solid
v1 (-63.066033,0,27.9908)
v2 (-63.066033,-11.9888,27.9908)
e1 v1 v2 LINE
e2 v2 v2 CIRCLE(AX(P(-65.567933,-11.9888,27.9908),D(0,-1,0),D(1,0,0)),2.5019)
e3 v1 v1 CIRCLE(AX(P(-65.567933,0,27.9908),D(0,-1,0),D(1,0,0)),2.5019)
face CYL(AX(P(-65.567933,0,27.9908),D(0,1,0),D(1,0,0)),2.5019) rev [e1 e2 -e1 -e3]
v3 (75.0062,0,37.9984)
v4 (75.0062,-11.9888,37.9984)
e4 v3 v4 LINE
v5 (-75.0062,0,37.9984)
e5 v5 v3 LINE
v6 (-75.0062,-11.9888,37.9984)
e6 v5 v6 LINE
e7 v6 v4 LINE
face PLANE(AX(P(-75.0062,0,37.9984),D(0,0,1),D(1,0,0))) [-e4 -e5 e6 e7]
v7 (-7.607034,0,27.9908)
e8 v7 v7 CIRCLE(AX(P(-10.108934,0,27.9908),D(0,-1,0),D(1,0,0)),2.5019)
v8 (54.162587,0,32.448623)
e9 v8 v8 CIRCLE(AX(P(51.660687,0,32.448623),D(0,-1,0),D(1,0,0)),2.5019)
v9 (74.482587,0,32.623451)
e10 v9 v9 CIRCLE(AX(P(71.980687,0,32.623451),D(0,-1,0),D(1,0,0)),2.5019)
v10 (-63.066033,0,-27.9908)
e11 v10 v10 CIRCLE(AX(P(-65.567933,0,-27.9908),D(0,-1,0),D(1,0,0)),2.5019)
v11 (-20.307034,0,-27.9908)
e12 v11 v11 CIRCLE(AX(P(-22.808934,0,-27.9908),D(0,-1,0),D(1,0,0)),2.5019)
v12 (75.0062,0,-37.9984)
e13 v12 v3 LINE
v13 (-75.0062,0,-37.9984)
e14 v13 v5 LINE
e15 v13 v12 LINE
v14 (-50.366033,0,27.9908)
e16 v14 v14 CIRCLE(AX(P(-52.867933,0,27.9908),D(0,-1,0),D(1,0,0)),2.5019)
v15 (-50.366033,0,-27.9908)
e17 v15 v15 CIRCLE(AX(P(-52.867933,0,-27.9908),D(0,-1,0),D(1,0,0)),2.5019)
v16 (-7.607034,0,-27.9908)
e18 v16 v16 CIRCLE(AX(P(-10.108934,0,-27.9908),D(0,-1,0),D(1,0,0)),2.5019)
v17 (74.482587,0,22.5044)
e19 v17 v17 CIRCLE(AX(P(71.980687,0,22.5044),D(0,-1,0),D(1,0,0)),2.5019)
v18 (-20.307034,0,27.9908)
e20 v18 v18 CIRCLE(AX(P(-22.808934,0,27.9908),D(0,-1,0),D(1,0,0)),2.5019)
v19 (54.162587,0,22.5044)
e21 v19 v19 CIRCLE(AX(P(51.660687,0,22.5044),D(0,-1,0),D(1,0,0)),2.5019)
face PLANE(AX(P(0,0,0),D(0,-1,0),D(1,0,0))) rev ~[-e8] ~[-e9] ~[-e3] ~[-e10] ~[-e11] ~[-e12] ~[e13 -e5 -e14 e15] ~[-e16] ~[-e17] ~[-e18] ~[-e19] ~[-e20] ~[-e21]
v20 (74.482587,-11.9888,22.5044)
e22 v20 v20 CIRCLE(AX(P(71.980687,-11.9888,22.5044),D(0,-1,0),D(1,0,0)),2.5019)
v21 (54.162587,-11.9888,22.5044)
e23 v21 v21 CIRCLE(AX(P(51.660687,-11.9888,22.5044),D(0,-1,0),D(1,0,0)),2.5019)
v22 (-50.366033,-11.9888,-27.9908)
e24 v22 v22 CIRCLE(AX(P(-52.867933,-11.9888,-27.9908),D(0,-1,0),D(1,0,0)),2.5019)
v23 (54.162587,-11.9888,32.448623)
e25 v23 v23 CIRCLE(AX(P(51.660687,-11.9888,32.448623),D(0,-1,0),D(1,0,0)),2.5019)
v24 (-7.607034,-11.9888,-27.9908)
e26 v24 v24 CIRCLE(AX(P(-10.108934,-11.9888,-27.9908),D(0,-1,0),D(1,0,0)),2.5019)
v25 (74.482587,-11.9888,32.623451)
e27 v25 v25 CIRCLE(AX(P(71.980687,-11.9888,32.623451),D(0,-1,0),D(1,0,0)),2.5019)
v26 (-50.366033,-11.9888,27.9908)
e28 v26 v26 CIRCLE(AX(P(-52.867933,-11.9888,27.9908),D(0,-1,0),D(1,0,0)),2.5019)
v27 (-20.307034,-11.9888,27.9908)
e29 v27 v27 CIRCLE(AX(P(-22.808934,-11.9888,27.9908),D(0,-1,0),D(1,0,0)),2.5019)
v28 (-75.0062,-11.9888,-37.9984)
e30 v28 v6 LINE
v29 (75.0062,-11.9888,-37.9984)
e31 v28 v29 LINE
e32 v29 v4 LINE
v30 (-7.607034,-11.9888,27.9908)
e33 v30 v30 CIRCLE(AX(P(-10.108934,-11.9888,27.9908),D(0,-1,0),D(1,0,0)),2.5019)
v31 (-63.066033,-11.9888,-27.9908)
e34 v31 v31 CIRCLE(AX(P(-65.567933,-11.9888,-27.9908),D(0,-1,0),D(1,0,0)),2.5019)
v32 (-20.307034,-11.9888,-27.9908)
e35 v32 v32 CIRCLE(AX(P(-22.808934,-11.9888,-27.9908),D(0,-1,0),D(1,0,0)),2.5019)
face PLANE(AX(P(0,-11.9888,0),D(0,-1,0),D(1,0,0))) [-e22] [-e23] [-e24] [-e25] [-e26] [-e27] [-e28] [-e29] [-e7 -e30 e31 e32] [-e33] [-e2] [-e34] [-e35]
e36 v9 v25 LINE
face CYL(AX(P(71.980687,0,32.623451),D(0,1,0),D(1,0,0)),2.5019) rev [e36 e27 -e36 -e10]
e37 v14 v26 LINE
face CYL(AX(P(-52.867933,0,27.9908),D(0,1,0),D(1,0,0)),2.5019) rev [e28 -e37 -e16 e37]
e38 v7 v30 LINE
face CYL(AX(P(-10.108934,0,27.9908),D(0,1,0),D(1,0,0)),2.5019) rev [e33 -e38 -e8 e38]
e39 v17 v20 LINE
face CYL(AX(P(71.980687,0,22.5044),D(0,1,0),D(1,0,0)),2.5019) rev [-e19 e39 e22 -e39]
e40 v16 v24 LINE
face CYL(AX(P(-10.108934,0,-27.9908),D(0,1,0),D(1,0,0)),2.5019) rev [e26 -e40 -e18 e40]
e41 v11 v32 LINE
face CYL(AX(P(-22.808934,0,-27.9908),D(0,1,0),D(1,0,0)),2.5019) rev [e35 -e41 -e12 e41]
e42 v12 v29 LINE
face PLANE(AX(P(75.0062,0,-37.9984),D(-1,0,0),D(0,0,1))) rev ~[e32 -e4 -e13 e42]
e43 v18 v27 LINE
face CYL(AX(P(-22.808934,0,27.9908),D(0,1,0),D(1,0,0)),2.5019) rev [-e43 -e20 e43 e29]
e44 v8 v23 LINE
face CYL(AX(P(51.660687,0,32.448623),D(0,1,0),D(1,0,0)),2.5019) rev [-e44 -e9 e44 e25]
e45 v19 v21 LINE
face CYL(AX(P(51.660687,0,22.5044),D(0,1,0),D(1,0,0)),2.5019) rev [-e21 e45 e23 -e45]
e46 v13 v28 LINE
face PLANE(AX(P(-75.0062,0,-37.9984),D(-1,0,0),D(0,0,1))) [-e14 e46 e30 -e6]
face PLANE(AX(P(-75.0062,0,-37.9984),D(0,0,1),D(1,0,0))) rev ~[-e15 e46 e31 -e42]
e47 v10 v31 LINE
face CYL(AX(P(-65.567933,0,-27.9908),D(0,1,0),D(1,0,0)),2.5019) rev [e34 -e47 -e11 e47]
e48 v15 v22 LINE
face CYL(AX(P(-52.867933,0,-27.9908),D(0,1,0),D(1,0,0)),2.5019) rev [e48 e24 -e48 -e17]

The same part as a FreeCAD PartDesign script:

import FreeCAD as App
import Part
import Sketcher

V = App.Vector
Q = App.Units.Quantity


def add_polygon(sketch, points):
    """Adds a closed chain of lines whose ends are joined by coincident constraints."""
    first, n = sketch.GeometryCount, len(points)
    for a, b in zip(points, points[1:] + points[:1]):
        sketch.addGeometry(Part.LineSegment(App.Vector(*a, 0), App.Vector(*b, 0)), False)
    for i in range(n):
        sketch.addConstraint(Sketcher.Constraint("Coincident", first + i, 2, first + (i + 1) % n, 1))

doc = App.newDocument("Part")
body = doc.addObject("PartDesign::Body", "Body")

# Sketch on XZ plane
sketch1 = body.newObject("Sketcher::SketchObject", "Sketch")
sketch1.AttachmentSupport = (doc.getObject("XZ_Plane"), [""])
sketch1.MapMode = "FlatFace"
add_polygon(sketch1, [(-75, 38), (-75, -38), (75, -38), (75, 38)])  # lines 0-3
sketch1.addGeometry(Part.Circle(V(-65.6, -28, 0), V(0, 0, 1), 2.5), False)  # 4
sketch1.addGeometry(Part.Circle(V(-52.9, -28, 0), V(0, 0, 1), 2.5), False)  # 5
sketch1.addGeometry(Part.Circle(V(-22.8, -28, 0), V(0, 0, 1), 2.5), False)  # 6
sketch1.addGeometry(Part.Circle(V(-10.1, -28, 0), V(0, 0, 1), 2.5), False)  # 7
sketch1.addGeometry(Part.Circle(V(-65.6, 28, 0), V(0, 0, 1), 2.5), False)  # 8
sketch1.addGeometry(Part.Circle(V(-52.9, 28, 0), V(0, 0, 1), 2.5), False)  # 9
sketch1.addGeometry(Part.Circle(V(-22.8, 28, 0), V(0, 0, 1), 2.5), False)  # 10
sketch1.addGeometry(Part.Circle(V(-10.1, 28, 0), V(0, 0, 1), 2.5), False)  # 11
sketch1.addGeometry(Part.Circle(V(51.7, 22.5, 0), V(0, 0, 1), 2.5), False)  # 12
sketch1.addGeometry(Part.Circle(V(72, 22.5, 0), V(0, 0, 1), 2.5), False)  # 13
sketch1.addGeometry(Part.Circle(V(51.7, 32.4, 0), V(0, 0, 1), 2.5), False)  # 14
sketch1.addGeometry(Part.Circle(V(72, 32.6, 0), V(0, 0, 1), 2.5), False)  # 15
sketch1.addConstraint(Sketcher.Constraint("Vertical", 0))
sketch1.addConstraint(Sketcher.Constraint("Horizontal", 1))
sketch1.addConstraint(Sketcher.Constraint("Vertical", 2))
sketch1.addConstraint(Sketcher.Constraint("Horizontal", 3))
sketch1.addConstraint(Sketcher.Constraint("Equal", 4, 5))
sketch1.addConstraint(Sketcher.Constraint("Equal", 5, 6))
sketch1.addConstraint(Sketcher.Constraint("Equal", 6, 7))
sketch1.addConstraint(Sketcher.Constraint("Equal", 7, 8))
sketch1.addConstraint(Sketcher.Constraint("Equal", 8, 9))
sketch1.addConstraint(Sketcher.Constraint("Equal", 9, 10))
sketch1.addConstraint(Sketcher.Constraint("Equal", 10, 11))
sketch1.addConstraint(Sketcher.Constraint("Equal", 11, 12))
sketch1.addConstraint(Sketcher.Constraint("Equal", 12, 13))
sketch1.addConstraint(Sketcher.Constraint("Equal", 13, 14))
sketch1.addConstraint(Sketcher.Constraint("Equal", 14, 15))
sketch1.addConstraint(Sketcher.Constraint("Symmetric", 0, 2, 2, 2, -1, 1))
sketch1.addConstraint(Sketcher.Constraint("Symmetric", 4, 3, 8, 3, -1))
sketch1.addConstraint(Sketcher.Constraint("Symmetric", 5, 3, 9, 3, -1))
sketch1.addConstraint(Sketcher.Constraint("Symmetric", 6, 3, 10, 3, -1))
sketch1.addConstraint(Sketcher.Constraint("Symmetric", 7, 3, 11, 3, -1))
sketch1.addConstraint(Sketcher.Constraint("Horizontal", 4, 3, 5, 3))
sketch1.addConstraint(Sketcher.Constraint("Horizontal", 5, 3, 6, 3))
sketch1.addConstraint(Sketcher.Constraint("Horizontal", 6, 3, 7, 3))
sketch1.addConstraint(Sketcher.Constraint("Horizontal", 12, 3, 13, 3))
sketch1.addConstraint(Sketcher.Constraint("Vertical", 12, 3, 14, 3))
sketch1.addConstraint(Sketcher.Constraint("Vertical", 13, 3, 15, 3))
sketch1.addConstraint(Sketcher.Constraint("Diameter", 4, Q("0.197 in")))
sketch1.addConstraint(Sketcher.Constraint("DistanceX", 4, 3, 5, 3, Q("0.5 in")))
sketch1.addConstraint(Sketcher.Constraint("DistanceX", 6, 3, 7, 3, Q("0.5 in")))
sketch1.addConstraint(Sketcher.Constraint("DistanceX", 12, 3, 13, 3, Q("0.8 in")))
sketch1.addConstraint(Sketcher.Constraint("DistanceX", 1, 1, 1, 2, Q("5.906 in")))
sketch1.addConstraint(Sketcher.Constraint("DistanceY", 0, 2, 0, 1, Q("2.992 in")))
sketch1.addConstraint(Sketcher.Constraint("DistanceY", 13, 3, 2, 2, Q("0.61 in")))
sketch1.addConstraint(Sketcher.Constraint("DistanceY", 4, 3, -1, 1, Q("1.102 in")))
sketch1.addConstraint(Sketcher.Constraint("DistanceX", 9, 3, 12, 3, Q("4.1153 in")))
sketch1.addConstraint(Sketcher.Constraint("DistanceX", 5, 3, 6, 3, Q("30.058999 mm")))
sketch1.addConstraint(Sketcher.Constraint("DistanceY", -1, 1, 15, 3, Q("32.623451 mm")))
sketch1.addConstraint(Sketcher.Constraint("DistanceY", 14, 3, 15, 3, Q("0.174828 mm")))
sketch1.addConstraint(Sketcher.Constraint("DistanceX", 4, 3, -1, 1, Q("65.567933 mm")))
pad1 = body.newObject("PartDesign::Pad", "Pad")
pad1.Profile = sketch1
pad1.Length = Q("0.472 in")

doc.recompute()
